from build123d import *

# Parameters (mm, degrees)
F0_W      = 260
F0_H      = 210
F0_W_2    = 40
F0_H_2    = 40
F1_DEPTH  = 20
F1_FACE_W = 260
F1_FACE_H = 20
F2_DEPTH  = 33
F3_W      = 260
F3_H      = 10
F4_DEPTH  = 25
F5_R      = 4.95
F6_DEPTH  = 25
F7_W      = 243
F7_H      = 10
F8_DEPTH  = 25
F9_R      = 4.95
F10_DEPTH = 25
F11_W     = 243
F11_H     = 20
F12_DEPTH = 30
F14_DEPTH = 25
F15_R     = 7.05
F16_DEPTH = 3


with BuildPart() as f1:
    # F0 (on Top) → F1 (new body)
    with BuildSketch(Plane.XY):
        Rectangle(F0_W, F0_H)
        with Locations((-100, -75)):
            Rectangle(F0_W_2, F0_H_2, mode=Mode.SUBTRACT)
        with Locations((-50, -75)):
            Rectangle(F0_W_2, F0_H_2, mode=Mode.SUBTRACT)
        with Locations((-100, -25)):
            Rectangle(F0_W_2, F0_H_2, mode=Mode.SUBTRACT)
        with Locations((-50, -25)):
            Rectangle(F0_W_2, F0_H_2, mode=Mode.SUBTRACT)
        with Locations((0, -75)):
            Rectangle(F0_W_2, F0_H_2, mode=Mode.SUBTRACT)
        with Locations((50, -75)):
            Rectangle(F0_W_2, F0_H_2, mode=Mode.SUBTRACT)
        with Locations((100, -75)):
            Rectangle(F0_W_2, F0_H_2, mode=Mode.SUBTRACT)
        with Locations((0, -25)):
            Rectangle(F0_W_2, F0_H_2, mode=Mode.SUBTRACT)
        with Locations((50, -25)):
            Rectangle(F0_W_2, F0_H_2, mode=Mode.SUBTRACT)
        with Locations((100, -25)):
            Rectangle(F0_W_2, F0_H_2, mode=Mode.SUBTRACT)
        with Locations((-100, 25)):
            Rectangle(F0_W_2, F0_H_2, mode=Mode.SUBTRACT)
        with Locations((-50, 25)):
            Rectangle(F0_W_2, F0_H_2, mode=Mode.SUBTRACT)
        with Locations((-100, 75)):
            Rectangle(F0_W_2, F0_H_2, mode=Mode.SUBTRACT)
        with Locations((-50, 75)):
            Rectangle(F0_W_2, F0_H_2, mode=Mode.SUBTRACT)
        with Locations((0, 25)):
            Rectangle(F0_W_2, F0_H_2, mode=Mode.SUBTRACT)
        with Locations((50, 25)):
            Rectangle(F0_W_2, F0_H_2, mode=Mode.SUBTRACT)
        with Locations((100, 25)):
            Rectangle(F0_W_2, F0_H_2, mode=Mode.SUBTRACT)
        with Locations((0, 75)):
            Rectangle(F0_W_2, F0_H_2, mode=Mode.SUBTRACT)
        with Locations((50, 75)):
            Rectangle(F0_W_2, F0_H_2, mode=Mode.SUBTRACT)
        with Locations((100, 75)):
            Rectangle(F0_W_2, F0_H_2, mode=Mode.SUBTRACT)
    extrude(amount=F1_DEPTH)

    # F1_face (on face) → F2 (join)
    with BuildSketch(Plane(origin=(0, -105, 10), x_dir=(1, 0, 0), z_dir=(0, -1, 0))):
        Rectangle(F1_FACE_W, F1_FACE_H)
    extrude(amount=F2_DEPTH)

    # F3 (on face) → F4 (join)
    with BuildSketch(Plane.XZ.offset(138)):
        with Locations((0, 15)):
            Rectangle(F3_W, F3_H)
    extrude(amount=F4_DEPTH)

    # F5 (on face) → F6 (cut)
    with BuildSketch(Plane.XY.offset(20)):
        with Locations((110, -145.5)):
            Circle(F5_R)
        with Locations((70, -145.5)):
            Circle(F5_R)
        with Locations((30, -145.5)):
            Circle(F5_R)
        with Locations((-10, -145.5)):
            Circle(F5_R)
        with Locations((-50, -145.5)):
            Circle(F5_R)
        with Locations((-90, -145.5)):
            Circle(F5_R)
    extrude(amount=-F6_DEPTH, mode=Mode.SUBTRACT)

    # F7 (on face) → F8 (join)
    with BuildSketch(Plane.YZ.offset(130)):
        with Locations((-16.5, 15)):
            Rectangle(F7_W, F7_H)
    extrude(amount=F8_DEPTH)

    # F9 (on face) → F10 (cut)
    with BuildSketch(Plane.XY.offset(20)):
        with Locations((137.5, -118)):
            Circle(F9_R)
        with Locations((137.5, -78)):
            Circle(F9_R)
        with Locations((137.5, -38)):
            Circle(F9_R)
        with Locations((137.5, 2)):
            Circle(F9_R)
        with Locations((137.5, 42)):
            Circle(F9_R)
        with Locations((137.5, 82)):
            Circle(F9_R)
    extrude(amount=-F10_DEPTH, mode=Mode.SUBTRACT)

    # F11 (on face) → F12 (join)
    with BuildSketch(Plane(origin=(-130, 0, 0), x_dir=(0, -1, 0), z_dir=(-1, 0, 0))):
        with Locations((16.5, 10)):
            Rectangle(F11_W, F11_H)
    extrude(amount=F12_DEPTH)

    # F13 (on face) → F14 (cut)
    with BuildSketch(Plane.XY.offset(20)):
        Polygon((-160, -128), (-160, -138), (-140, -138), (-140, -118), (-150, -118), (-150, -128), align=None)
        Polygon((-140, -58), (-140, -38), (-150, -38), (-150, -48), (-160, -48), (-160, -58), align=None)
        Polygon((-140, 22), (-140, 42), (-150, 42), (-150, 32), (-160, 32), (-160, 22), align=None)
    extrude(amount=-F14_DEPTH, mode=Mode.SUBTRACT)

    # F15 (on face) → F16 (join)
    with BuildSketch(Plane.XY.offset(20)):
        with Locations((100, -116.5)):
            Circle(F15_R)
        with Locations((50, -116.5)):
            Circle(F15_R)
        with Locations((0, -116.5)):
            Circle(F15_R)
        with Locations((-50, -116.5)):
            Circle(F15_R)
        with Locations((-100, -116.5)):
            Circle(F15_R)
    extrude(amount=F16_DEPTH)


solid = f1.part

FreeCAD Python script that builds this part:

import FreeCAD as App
import Part
import Sketcher
from FreeCAD import Vector

doc = App.newDocument("Part")
body = doc.addObject("PartDesign::Body", "Body")

# Sketch on XY plane
sketch1 = body.newObject("Sketcher::SketchObject", "Sketch")
sketch1.AttachmentSupport = (doc.getObject("XY_Plane"), [""])
sketch1.MapMode = "FlatFace"
sketch1.addGeometry([
    Part.LineSegment(Vector(-130, 105, 0), Vector(-130, -105, 0)),  # 0
    Part.LineSegment(Vector(-130, -105, 0), Vector(130, -105, 0)),  # 1
    Part.LineSegment(Vector(130, -105, 0), Vector(130, 105, 0)),  # 2
    Part.LineSegment(Vector(130, 105, 0), Vector(-130, 105, 0)),  # 3
    Part.LineSegment(Vector(-80, -95, 0), Vector(-120, -95, 0)),  # 4
    Part.LineSegment(Vector(-120, -95, 0), Vector(-120, -55, 0)),  # 5
    Part.LineSegment(Vector(-120, -55, 0), Vector(-80, -55, 0)),  # 6
    Part.LineSegment(Vector(-80, -55, 0), Vector(-80, -95, 0)),  # 7
    Part.LineSegment(Vector(-30, -95, 0), Vector(-70, -95, 0)),  # 8
    Part.LineSegment(Vector(-70, -95, 0), Vector(-70, -55, 0)),  # 9
    Part.LineSegment(Vector(-70, -55, 0), Vector(-30, -55, 0)),  # 10
    Part.LineSegment(Vector(-30, -55, 0), Vector(-30, -95, 0)),  # 11
    Part.LineSegment(Vector(-80, -45, 0), Vector(-120, -45, 0)),  # 12
    Part.LineSegment(Vector(-120, -45, 0), Vector(-120, -5, 0)),  # 13
    Part.LineSegment(Vector(-120, -5, 0), Vector(-80, -5, 0)),  # 14
    Part.LineSegment(Vector(-80, -5, 0), Vector(-80, -45, 0)),  # 15
    Part.LineSegment(Vector(-30, -45, 0), Vector(-70, -45, 0)),  # 16
    Part.LineSegment(Vector(-70, -45, 0), Vector(-70, -5, 0)),  # 17
    Part.LineSegment(Vector(-70, -5, 0), Vector(-30, -5, 0)),  # 18
    Part.LineSegment(Vector(-30, -5, 0), Vector(-30, -45, 0)),  # 19
    Part.LineSegment(Vector(20, -95, 0), Vector(-20, -95, 0)),  # 20
    Part.LineSegment(Vector(-20, -95, 0), Vector(-20, -55, 0)),  # 21
    Part.LineSegment(Vector(-20, -55, 0), Vector(20, -55, 0)),  # 22
    Part.LineSegment(Vector(20, -55, 0), Vector(20, -95, 0)),  # 23
    Part.LineSegment(Vector(70, -95, 0), Vector(30, -95, 0)),  # 24
    Part.LineSegment(Vector(30, -95, 0), Vector(30, -55, 0)),  # 25
    Part.LineSegment(Vector(30, -55, 0), Vector(70, -55, 0)),  # 26
    Part.LineSegment(Vector(70, -55, 0), Vector(70, -95, 0)),  # 27
    Part.LineSegment(Vector(120, -95, 0), Vector(80, -95, 0)),  # 28
    Part.LineSegment(Vector(80, -95, 0), Vector(80, -55, 0)),  # 29
    Part.LineSegment(Vector(80, -55, 0), Vector(120, -55, 0)),  # 30
    Part.LineSegment(Vector(120, -55, 0), Vector(120, -95, 0)),  # 31
    Part.LineSegment(Vector(20, -45, 0), Vector(-20, -45, 0)),  # 32
    Part.LineSegment(Vector(-20, -45, 0), Vector(-20, -5, 0)),  # 33
    Part.LineSegment(Vector(-20, -5, 0), Vector(20, -5, 0)),  # 34
    Part.LineSegment(Vector(20, -5, 0), Vector(20, -45, 0)),  # 35
    Part.LineSegment(Vector(70, -45, 0), Vector(30, -45, 0)),  # 36
    Part.LineSegment(Vector(30, -45, 0), Vector(30, -5, 0)),  # 37
    Part.LineSegment(Vector(30, -5, 0), Vector(70, -5, 0)),  # 38
    Part.LineSegment(Vector(70, -5, 0), Vector(70, -45, 0)),  # 39
    Part.LineSegment(Vector(120, -45, 0), Vector(80, -45, 0)),  # 40
    Part.LineSegment(Vector(80, -45, 0), Vector(80, -5, 0)),  # 41
    Part.LineSegment(Vector(80, -5, 0), Vector(120, -5, 0)),  # 42
    Part.LineSegment(Vector(120, -5, 0), Vector(120, -45, 0)),  # 43
    Part.LineSegment(Vector(-80, 5, 0), Vector(-120, 5, 0)),  # 44
    Part.LineSegment(Vector(-120, 5, 0), Vector(-120, 45, 0)),  # 45
    Part.LineSegment(Vector(-120, 45, 0), Vector(-80, 45, 0)),  # 46
    Part.LineSegment(Vector(-80, 45, 0), Vector(-80, 5, 0)),  # 47
    Part.LineSegment(Vector(-30, 5, 0), Vector(-70, 5, 0)),  # 48
    Part.LineSegment(Vector(-70, 5, 0), Vector(-70, 45, 0)),  # 49
    Part.LineSegment(Vector(-70, 45, 0), Vector(-30, 45, 0)),  # 50
    Part.LineSegment(Vector(-30, 45, 0), Vector(-30, 5, 0)),  # 51
    Part.LineSegment(Vector(-80, 55, 0), Vector(-120, 55, 0)),  # 52
    Part.LineSegment(Vector(-120, 55, 0), Vector(-120, 95, 0)),  # 53
    Part.LineSegment(Vector(-120, 95, 0), Vector(-80, 95, 0)),  # 54
    Part.LineSegment(Vector(-80, 95, 0), Vector(-80, 55, 0)),  # 55
    Part.LineSegment(Vector(-30, 55, 0), Vector(-70, 55, 0)),  # 56
    Part.LineSegment(Vector(-70, 55, 0), Vector(-70, 95, 0)),  # 57
    Part.LineSegment(Vector(-70, 95, 0), Vector(-30, 95, 0)),  # 58
    Part.LineSegment(Vector(-30, 95, 0), Vector(-30, 55, 0)),  # 59
    Part.LineSegment(Vector(20, 5, 0), Vector(-20, 5, 0)),  # 60
    Part.LineSegment(Vector(-20, 5, 0), Vector(-20, 45, 0)),  # 61
    Part.LineSegment(Vector(-20, 45, 0), Vector(20, 45, 0)),  # 62
    Part.LineSegment(Vector(20, 45, 0), Vector(20, 5, 0)),  # 63
    Part.LineSegment(Vector(70, 5, 0), Vector(30, 5, 0)),  # 64
    Part.LineSegment(Vector(30, 5, 0), Vector(30, 45, 0)),  # 65
    Part.LineSegment(Vector(30, 45, 0), Vector(70, 45, 0)),  # 66
    Part.LineSegment(Vector(70, 45, 0), Vector(70, 5, 0)),  # 67
    Part.LineSegment(Vector(120, 5, 0), Vector(80, 5, 0)),  # 68
    Part.LineSegment(Vector(80, 5, 0), Vector(80, 45, 0)),  # 69
    Part.LineSegment(Vector(80, 45, 0), Vector(120, 45, 0)),  # 70
    Part.LineSegment(Vector(120, 45, 0), Vector(120, 5, 0)),  # 71
    Part.LineSegment(Vector(20, 55, 0), Vector(-20, 55, 0)),  # 72
    Part.LineSegment(Vector(-20, 55, 0), Vector(-20, 95, 0)),  # 73
    Part.LineSegment(Vector(-20, 95, 0), Vector(20, 95, 0)),  # 74
    Part.LineSegment(Vector(20, 95, 0), Vector(20, 55, 0)),  # 75
    Part.LineSegment(Vector(70, 55, 0), Vector(30, 55, 0)),  # 76
    Part.LineSegment(Vector(30, 55, 0), Vector(30, 95, 0)),  # 77
    Part.LineSegment(Vector(30, 95, 0), Vector(70, 95, 0)),  # 78
    Part.LineSegment(Vector(70, 95, 0), Vector(70, 55, 0)),  # 79
    Part.LineSegment(Vector(120, 55, 0), Vector(80, 55, 0)),  # 80
    Part.LineSegment(Vector(80, 55, 0), Vector(80, 95, 0)),  # 81
    Part.LineSegment(Vector(80, 95, 0), Vector(120, 95, 0)),  # 82
    Part.LineSegment(Vector(120, 95, 0), Vector(120, 55, 0)),  # 83
], False)
sketch1.addConstraint([
    Sketcher.Constraint("Coincident", 0, 2, 1, 1),
    Sketcher.Constraint("Coincident", 1, 2, 2, 1),
    Sketcher.Constraint("Coincident", 2, 2, 3, 1),
    Sketcher.Constraint("Coincident", 3, 2, 0, 1),
    Sketcher.Constraint("Coincident", 4, 2, 5, 1),
    Sketcher.Constraint("Coincident", 5, 2, 6, 1),
    Sketcher.Constraint("Coincident", 6, 2, 7, 1),
    Sketcher.Constraint("Coincident", 7, 2, 4, 1),
    Sketcher.Constraint("Coincident", 8, 2, 9, 1),
    Sketcher.Constraint("Coincident", 9, 2, 10, 1),
    Sketcher.Constraint("Coincident", 10, 2, 11, 1),
    Sketcher.Constraint("Coincident", 11, 2, 8, 1),
    Sketcher.Constraint("Coincident", 12, 2, 13, 1),
    Sketcher.Constraint("Coincident", 13, 2, 14, 1),
    Sketcher.Constraint("Coincident", 14, 2, 15, 1),
    Sketcher.Constraint("Coincident", 15, 2, 12, 1),
    Sketcher.Constraint("Coincident", 16, 2, 17, 1),
    Sketcher.Constraint("Coincident", 17, 2, 18, 1),
    Sketcher.Constraint("Coincident", 18, 2, 19, 1),
    Sketcher.Constraint("Coincident", 19, 2, 16, 1),
    Sketcher.Constraint("Coincident", 20, 2, 21, 1),
    Sketcher.Constraint("Coincident", 21, 2, 22, 1),
    Sketcher.Constraint("Coincident", 22, 2, 23, 1),
    Sketcher.Constraint("Coincident", 23, 2, 20, 1),
    Sketcher.Constraint("Coincident", 24, 2, 25, 1),
    Sketcher.Constraint("Coincident", 25, 2, 26, 1),
    Sketcher.Constraint("Coincident", 26, 2, 27, 1),
    Sketcher.Constraint("Coincident", 27, 2, 24, 1),
    Sketcher.Constraint("Coincident", 28, 2, 29, 1),
    Sketcher.Constraint("Coincident", 29, 2, 30, 1),
    Sketcher.Constraint("Coincident", 30, 2, 31, 1),
    Sketcher.Constraint("Coincident", 31, 2, 28, 1),
    Sketcher.Constraint("Coincident", 32, 2, 33, 1),
    Sketcher.Constraint("Coincident", 33, 2, 34, 1),
    Sketcher.Constraint("Coincident", 34, 2, 35, 1),
    Sketcher.Constraint("Coincident", 35, 2, 32, 1),
    Sketcher.Constraint("Coincident", 36, 2, 37, 1),
    Sketcher.Constraint("Coincident", 37, 2, 38, 1),
    Sketcher.Constraint("Coincident", 38, 2, 39, 1),
    Sketcher.Constraint("Coincident", 39, 2, 36, 1),
    Sketcher.Constraint("Coincident", 40, 2, 41, 1),
    Sketcher.Constraint("Coincident", 41, 2, 42, 1),
    Sketcher.Constraint("Coincident", 42, 2, 43, 1),
    Sketcher.Constraint("Coincident", 43, 2, 40, 1),
    Sketcher.Constraint("Coincident", 44, 2, 45, 1),
    Sketcher.Constraint("Coincident", 45, 2, 46, 1),
    Sketcher.Constraint("Coincident", 46, 2, 47, 1),
    Sketcher.Constraint("Coincident", 47, 2, 44, 1),
    Sketcher.Constraint("Coincident", 48, 2, 49, 1),
    Sketcher.Constraint("Coincident", 49, 2, 50, 1),
    Sketcher.Constraint("Coincident", 50, 2, 51, 1),
    Sketcher.Constraint("Coincident", 51, 2, 48, 1),
    Sketcher.Constraint("Coincident", 52, 2, 53, 1),
    Sketcher.Constraint("Coincident", 53, 2, 54, 1),
    Sketcher.Constraint("Coincident", 54, 2, 55, 1),
    Sketcher.Constraint("Coincident", 55, 2, 52, 1),
    Sketcher.Constraint("Coincident", 56, 2, 57, 1),
    Sketcher.Constraint("Coincident", 57, 2, 58, 1),
    Sketcher.Constraint("Coincident", 58, 2, 59, 1),
    Sketcher.Constraint("Coincident", 59, 2, 56, 1),
    Sketcher.Constraint("Coincident", 60, 2, 61, 1),
    Sketcher.Constraint("Coincident", 61, 2, 62, 1),
    Sketcher.Constraint("Coincident", 62, 2, 63, 1),
    Sketcher.Constraint("Coincident", 63, 2, 60, 1),
    Sketcher.Constraint("Coincident", 64, 2, 65, 1),
    Sketcher.Constraint("Coincident", 65, 2, 66, 1),
    Sketcher.Constraint("Coincident", 66, 2, 67, 1),
    Sketcher.Constraint("Coincident", 67, 2, 64, 1),
    Sketcher.Constraint("Coincident", 68, 2, 69, 1),
    Sketcher.Constraint("Coincident", 69, 2, 70, 1),
    Sketcher.Constraint("Coincident", 70, 2, 71, 1),
    Sketcher.Constraint("Coincident", 71, 2, 68, 1),
    Sketcher.Constraint("Coincident", 72, 2, 73, 1),
    Sketcher.Constraint("Coincident", 73, 2, 74, 1),
    Sketcher.Constraint("Coincident", 74, 2, 75, 1),
    Sketcher.Constraint("Coincident", 75, 2, 72, 1),
    Sketcher.Constraint("Coincident", 76, 2, 77, 1),
    Sketcher.Constraint("Coincident", 77, 2, 78, 1),
    Sketcher.Constraint("Coincident", 78, 2, 79, 1),
    Sketcher.Constraint("Coincident", 79, 2, 76, 1),
    Sketcher.Constraint("Coincident", 80, 2, 81, 1),
    Sketcher.Constraint("Coincident", 81, 2, 82, 1),
    Sketcher.Constraint("Coincident", 82, 2, 83, 1),
    Sketcher.Constraint("Coincident", 83, 2, 80, 1),
    Sketcher.Constraint("Vertical", 0),
    Sketcher.Constraint("Horizontal", 1),
    Sketcher.Constraint("Vertical", 2),
    Sketcher.Constraint("Horizontal", 3),
    Sketcher.Constraint("Horizontal", 4),
    Sketcher.Constraint("Vertical", 5),
    Sketcher.Constraint("Horizontal", 6),
    Sketcher.Constraint("Vertical", 7),
    Sketcher.Constraint("Horizontal", 8),
    Sketcher.Constraint("Vertical", 9),
    Sketcher.Constraint("Horizontal", 10),
    Sketcher.Constraint("Vertical", 11),
    Sketcher.Constraint("Horizontal", 12),
    Sketcher.Constraint("Vertical", 13),
    Sketcher.Constraint("Horizontal", 14),
    Sketcher.Constraint("Vertical", 15),
    Sketcher.Constraint("Horizontal", 16),
    Sketcher.Constraint("Vertical", 17),
    Sketcher.Constraint("Horizontal", 18),
    Sketcher.Constraint("Vertical", 19),
    Sketcher.Constraint("Horizontal", 20),
    Sketcher.Constraint("Vertical", 21),
    Sketcher.Constraint("Horizontal", 22),
    Sketcher.Constraint("Vertical", 23),
    Sketcher.Constraint("Horizontal", 24),
    Sketcher.Constraint("Vertical", 25),
    Sketcher.Constraint("Horizontal", 26),
    Sketcher.Constraint("Vertical", 27),
    Sketcher.Constraint("Horizontal", 28),
    Sketcher.Constraint("Vertical", 29),
    Sketcher.Constraint("Horizontal", 30),
    Sketcher.Constraint("Vertical", 31),
    Sketcher.Constraint("Horizontal", 32),
    Sketcher.Constraint("Vertical", 33),
    Sketcher.Constraint("Horizontal", 34),
    Sketcher.Constraint("Vertical", 35),
    Sketcher.Constraint("Horizontal", 36),
    Sketcher.Constraint("Vertical", 37),
    Sketcher.Constraint("Horizontal", 38),
    Sketcher.Constraint("Vertical", 39),
    Sketcher.Constraint("Horizontal", 40),
    Sketcher.Constraint("Vertical", 41),
    Sketcher.Constraint("Horizontal", 42),
    Sketcher.Constraint("Vertical", 43),
    Sketcher.Constraint("Horizontal", 44),
    Sketcher.Constraint("Vertical", 45),
    Sketcher.Constraint("Horizontal", 46),
    Sketcher.Constraint("Vertical", 47),
    Sketcher.Constraint("Horizontal", 48),
    Sketcher.Constraint("Vertical", 49),
    Sketcher.Constraint("Horizontal", 50),
    Sketcher.Constraint("Vertical", 51),
    Sketcher.Constraint("Horizontal", 52),
    Sketcher.Constraint("Vertical", 53),
    Sketcher.Constraint("Horizontal", 54),
    Sketcher.Constraint("Vertical", 55),
    Sketcher.Constraint("Horizontal", 56),
    Sketcher.Constraint("Vertical", 57),
    Sketcher.Constraint("Horizontal", 58),
    Sketcher.Constraint("Vertical", 59),
    Sketcher.Constraint("Horizontal", 60),
    Sketcher.Constraint("Vertical", 61),
    Sketcher.Constraint("Horizontal", 62),
    Sketcher.Constraint("Vertical", 63),
    Sketcher.Constraint("Horizontal", 64),
    Sketcher.Constraint("Vertical", 65),
    Sketcher.Constraint("Horizontal", 66),
    Sketcher.Constraint("Vertical", 67),
    Sketcher.Constraint("Horizontal", 68),
    Sketcher.Constraint("Vertical", 69),
    Sketcher.Constraint("Horizontal", 70),
    Sketcher.Constraint("Vertical", 71),
    Sketcher.Constraint("Horizontal", 72),
    Sketcher.Constraint("Vertical", 73),
    Sketcher.Constraint("Horizontal", 74),
    Sketcher.Constraint("Vertical", 75),
    Sketcher.Constraint("Horizontal", 76),
    Sketcher.Constraint("Vertical", 77),
    Sketcher.Constraint("Horizontal", 78),
    Sketcher.Constraint("Vertical", 79),
    Sketcher.Constraint("Horizontal", 80),
    Sketcher.Constraint("Vertical", 81),
    Sketcher.Constraint("Horizontal", 82),
    Sketcher.Constraint("Vertical", 83),
    Sketcher.Constraint("Symmetric", 0, 2, 2, 2, -1, 1),
    Sketcher.Constraint("Symmetric", 42, 2, 44, 2, -1, 1),
    Sketcher.Constraint("Symmetric", 40, 2, 46, 2, -1, 1),
    Sketcher.Constraint("Symmetric", 38, 2, 48, 2, -1, 1),
    Sketcher.Constraint("Symmetric", 36, 2, 50, 2, -1, 1),
    Sketcher.Constraint("Symmetric", 30, 2, 52, 2, -1, 1),
    Sketcher.Constraint("Symmetric", 28, 2, 54, 2, -1, 1),
    Sketcher.Constraint("Symmetric", 26, 2, 56, 2, -1, 1),
    Sketcher.Constraint("Symmetric", 24, 2, 58, 2, -1, 1),
    Sketcher.Constraint("Symmetric", 34, 2, 60, 2, -1, 1),
    Sketcher.Constraint("Symmetric", 32, 2, 62, 2, -1, 1),
    Sketcher.Constraint("Symmetric", 18, 2, 64, 2, -1, 1),
    Sketcher.Constraint("Symmetric", 16, 2, 66, 2, -1, 1),
    Sketcher.Constraint("Symmetric", 14, 2, 68, 2, -1, 1),
    Sketcher.Constraint("Symmetric", 12, 2, 70, 2, -1, 1),
    Sketcher.Constraint("Symmetric", 22, 2, 72, 2, -1, 1),
    Sketcher.Constraint("Symmetric", 20, 2, 74, 2, -1, 1),
    Sketcher.Constraint("Symmetric", 10, 2, 76, 2, -1, 1),
    Sketcher.Constraint("Symmetric", 8, 2, 78, 2, -1, 1),
    Sketcher.Constraint("Symmetric", 6, 2, 80, 2, -1, 1),
    Sketcher.Constraint("Symmetric", 4, 2, 82, 2, -1, 1),
    Sketcher.Constraint("Symmetric", 11, 2, 24, 2, -2),
    Sketcher.Constraint("Symmetric", 9, 2, 26, 2, -2),
    Sketcher.Constraint("Symmetric", 7, 2, 28, 2, -2),
    Sketcher.Constraint("Symmetric", 5, 2, 30, 2, -2),
    Sketcher.Constraint("Symmetric", 19, 2, 36, 2, -2),
    Sketcher.Constraint("Symmetric", 17, 2, 38, 2, -2),
    Sketcher.Constraint("Symmetric", 15, 2, 40, 2, -2),
    Sketcher.Constraint("Symmetric", 13, 2, 42, 2, -2),
    Sketcher.Constraint("Horizontal", 7, 2, 8, 2),
    Sketcher.Constraint("Horizontal", 6, 2, 9, 2),
    Sketcher.Constraint("Horizontal", 15, 2, 16, 2),
    Sketcher.Constraint("Horizontal", 14, 2, 17, 2),
    Sketcher.Constraint("Horizontal", 11, 2, 20, 2),
    Sketcher.Constraint("Horizontal", 10, 2, 21, 2),
    Sketcher.Constraint("Horizontal", 19, 2, 32, 2),
    Sketcher.Constraint("Horizontal", 18, 2, 33, 2),
    Sketcher.Constraint("Vertical", 5, 2, 12, 2),
    Sketcher.Constraint("Vertical", 7, 2, 14, 2),
    Sketcher.Constraint("Vertical", 9, 2, 16, 2),
    Sketcher.Constraint("Vertical", 11, 2, 18, 2),
    Sketcher.Constraint("Vertical", 21, 2, 32, 2),
    Sketcher.Constraint("Vertical", 23, 2, 34, 2),
    Sketcher.Constraint("Vertical", 33, 2, 60, 2),
    Sketcher.Constraint("Equal", 6, 8),
    Sketcher.Constraint("Equal", 18, 20),
    Sketcher.Constraint("Equal", 82, 5),
    Sketcher.Constraint("Equal", 11, 13),
    Sketcher.Constraint("DistanceX", 1, 1, 1, 2, 260.0),
    Sketcher.Constraint("DistanceX", 4, 2, 4, 1, 40.0),
    Sketcher.Constraint("DistanceY", 0, 2, 0, 1, 210.0),
    Sketcher.Constraint("DistanceX", 4, 2, -1, 1, 120.0),
    Sketcher.Constraint("DistanceY", 4, 2, -1, 1, 95.0),
    Sketcher.Constraint("DistanceX", 8, 2, -1, 1, 70.0),
    Sketcher.Constraint("DistanceY", 12, 2, -1, 1, 45.0),
])
pad1 = body.newObject("PartDesign::Pad", "Pad")
pad1.Profile = sketch1
pad1.Length = 20

# Sketch on XZ plane
sketch2 = body.newObject("Sketcher::SketchObject", "Sketch001")
sketch2.AttachmentSupport = (doc.getObject("XZ_Plane"), [""])
sketch2.MapMode = "FlatFace"
sketch2.AttachmentOffset = App.Placement(Vector(0, 0, 105), App.Rotation())
sketch2.addGeometry([
    Part.LineSegment(Vector(-130, 20, 0), Vector(-130, 0, 0)),
    Part.LineSegment(Vector(-130, 0, 0), Vector(130, 0, 0)),
    Part.LineSegment(Vector(130, 0, 0), Vector(130, 20, 0)),
    Part.LineSegment(Vector(130, 20, 0), Vector(-130, 20, 0)),
], False)
sketch2.addConstraint([
    Sketcher.Constraint("Coincident", 0, 2, 1, 1),
    Sketcher.Constraint("Coincident", 1, 2, 2, 1),
    Sketcher.Constraint("Coincident", 2, 2, 3, 1),
    Sketcher.Constraint("Coincident", 3, 2, 0, 1),
    Sketcher.Constraint("Vertical", 0),
    Sketcher.Constraint("Horizontal", 1),
    Sketcher.Constraint("Vertical", 2),
    Sketcher.Constraint("Horizontal", 3),
    Sketcher.Constraint("Symmetric", 0, 2, 1, 2, -1, 1),
    Sketcher.Constraint("DistanceX", 1, 1, 1, 2, 260.0),
    Sketcher.Constraint("DistanceY", 0, 2, 0, 1, 20.0),
])
pad2 = body.newObject("PartDesign::Pad", "Pad001")
pad2.Profile = sketch2
pad2.Length = 33

# Sketch on XZ plane
sketch3 = body.newObject("Sketcher::SketchObject", "Sketch002")
sketch3.AttachmentSupport = (doc.getObject("XZ_Plane"), [""])
sketch3.MapMode = "FlatFace"
sketch3.AttachmentOffset = App.Placement(Vector(0, 0, 138), App.Rotation())
sketch3.addGeometry([
    Part.LineSegment(Vector(-130, 20, 0), Vector(-130, 10, 0)),
    Part.LineSegment(Vector(-130, 10, 0), Vector(130, 10, 0)),
    Part.LineSegment(Vector(130, 10, 0), Vector(130, 20, 0)),
    Part.LineSegment(Vector(130, 20, 0), Vector(-130, 20, 0)),
], False)
sketch3.addConstraint([
    Sketcher.Constraint("Coincident", 0, 2, 1, 1),
    Sketcher.Constraint("Coincident", 1, 2, 2, 1),
    Sketcher.Constraint("Coincident", 2, 2, 3, 1),
    Sketcher.Constraint("Coincident", 3, 2, 0, 1),
    Sketcher.Constraint("Vertical", 0),
    Sketcher.Constraint("Horizontal", 1),
    Sketcher.Constraint("Vertical", 2),
    Sketcher.Constraint("Horizontal", 3),
    Sketcher.Constraint("DistanceX", 1, 1, 1, 2, 260.0),
    Sketcher.Constraint("DistanceY", 0, 2, 0, 1, 10.0),
    Sketcher.Constraint("DistanceX", 0, 2, -1, 1, 130.0),
    Sketcher.Constraint("DistanceY", -1, 1, 0, 2, 10.0),
])
pad3 = body.newObject("PartDesign::Pad", "Pad002")
pad3.Profile = sketch3
pad3.Length = 25

# Sketch on XY plane
sketch4 = body.newObject("Sketcher::SketchObject", "Sketch003")
sketch4.AttachmentSupport = (doc.getObject("XY_Plane"), [""])
sketch4.MapMode = "FlatFace"
sketch4.AttachmentOffset = App.Placement(Vector(0, 0, 20), App.Rotation())
sketch4.addGeometry([
    Part.Circle(Vector(110, -145.5, 0), Vector(0, 0, 1), 5),  # 0
    Part.Circle(Vector(70, -145.5, 0), Vector(0, 0, 1), 5),  # 1
    Part.Circle(Vector(30, -145.5, 0), Vector(0, 0, 1), 5),  # 2
    Part.Circle(Vector(-10, -145.5, 0), Vector(0, 0, 1), 5),  # 3
    Part.Circle(Vector(-50, -145.5, 0), Vector(0, 0, 1), 5),  # 4
    Part.Circle(Vector(-90, -145.5, 0), Vector(0, 0, 1), 5),  # 5
], False)
sketch4.addConstraint([
    Sketcher.Constraint("Equal", 0, 1),
    Sketcher.Constraint("Equal", 1, 2),
    Sketcher.Constraint("Equal", 2, 3),
    Sketcher.Constraint("Equal", 3, 4),
    Sketcher.Constraint("Equal", 4, 5),
    Sketcher.Constraint("Horizontal", 0, 3, 1, 3),
    Sketcher.Constraint("Horizontal", 1, 3, 2, 3),
    Sketcher.Constraint("Horizontal", 2, 3, 3, 3),
    Sketcher.Constraint("Horizontal", 3, 3, 4, 3),
    Sketcher.Constraint("Horizontal", 4, 3, 5, 3),
    Sketcher.Constraint("Diameter", 0, 9.9),
    Sketcher.Constraint("DistanceX", -1, 1, 0, 3, 110.0),
    Sketcher.Constraint("DistanceX", -1, 1, 1, 3, 70.0),
    Sketcher.Constraint("DistanceX", -1, 1, 2, 3, 30.0),
    Sketcher.Constraint("DistanceX", 3, 3, -1, 1, 10.0),
    Sketcher.Constraint("DistanceX", 4, 3, -1, 1, 50.0),
    Sketcher.Constraint("DistanceX", 5, 3, -1, 1, 90.0),
    Sketcher.Constraint("DistanceY", 0, 3, -1, 1, 145.5),
])
pocket1 = body.newObject("PartDesign::Pocket", "Pocket")
pocket1.Profile = sketch4
pocket1.Length = 25

# Sketch on YZ plane
sketch5 = body.newObject("Sketcher::SketchObject", "Sketch004")
sketch5.AttachmentSupport = (doc.getObject("YZ_Plane"), [""])
sketch5.MapMode = "FlatFace"
sketch5.AttachmentOffset = App.Placement(Vector(0, 0, 130), App.Rotation())
sketch5.addGeometry([
    Part.LineSegment(Vector(-138, 20, 0), Vector(-138, 10, 0)),
    Part.LineSegment(Vector(-138, 10, 0), Vector(105, 10, 0)),
    Part.LineSegment(Vector(105, 10, 0), Vector(105, 20, 0)),
    Part.LineSegment(Vector(105, 20, 0), Vector(-138, 20, 0)),
], False)
sketch5.addConstraint([
    Sketcher.Constraint("Coincident", 0, 2, 1, 1),
    Sketcher.Constraint("Coincident", 1, 2, 2, 1),
    Sketcher.Constraint("Coincident", 2, 2, 3, 1),
    Sketcher.Constraint("Coincident", 3, 2, 0, 1),
    Sketcher.Constraint("Vertical", 0),
    Sketcher.Constraint("Horizontal", 1),
    Sketcher.Constraint("Vertical", 2),
    Sketcher.Constraint("Horizontal", 3),
    Sketcher.Constraint("DistanceX", 1, 1, 1, 2, 243.0),
    Sketcher.Constraint("DistanceY", 0, 2, 0, 1, 10.0),
    Sketcher.Constraint("DistanceX", 0, 2, -1, 1, 138.0),
    Sketcher.Constraint("DistanceY", -1, 1, 0, 2, 10.0),
])
pad4 = body.newObject("PartDesign::Pad", "Pad003")
pad4.Profile = sketch5
pad4.Length = 25

# Sketch on XY plane
sketch6 = body.newObject("Sketcher::SketchObject", "Sketch005")
sketch6.AttachmentSupport = (doc.getObject("XY_Plane"), [""])
sketch6.MapMode = "FlatFace"
sketch6.AttachmentOffset = App.Placement(Vector(0, 0, 20), App.Rotation())
sketch6.addGeometry([
    Part.Circle(Vector(137.5, -118, 0), Vector(0, 0, 1), 5),  # 0
    Part.Circle(Vector(137.5, -78, 0), Vector(0, 0, 1), 5),  # 1
    Part.Circle(Vector(137.5, -38, 0), Vector(0, 0, 1), 5),  # 2
    Part.Circle(Vector(137.5, 2, 0), Vector(0, 0, 1), 5),  # 3
    Part.Circle(Vector(137.5, 42, 0), Vector(0, 0, 1), 5),  # 4
    Part.Circle(Vector(137.5, 82, 0), Vector(0, 0, 1), 5),  # 5
], False)
sketch6.addConstraint([
    Sketcher.Constraint("Equal", 0, 1),
    Sketcher.Constraint("Equal", 1, 2),
    Sketcher.Constraint("Equal", 2, 3),
    Sketcher.Constraint("Equal", 3, 4),
    Sketcher.Constraint("Equal", 4, 5),
    Sketcher.Constraint("Vertical", 0, 3, 1, 3),
    Sketcher.Constraint("Vertical", 1, 3, 2, 3),
    Sketcher.Constraint("Vertical", 2, 3, 3, 3),
    Sketcher.Constraint("Vertical", 3, 3, 4, 3),
    Sketcher.Constraint("Vertical", 4, 3, 5, 3),
    Sketcher.Constraint("Diameter", 0, 9.9),
    Sketcher.Constraint("DistanceY", 0, 3, -1, 1, 118.0),
    Sketcher.Constraint("DistanceY", 1, 3, -1, 1, 78.0),
    Sketcher.Constraint("DistanceY", 2, 3, -1, 1, 38.0),
    Sketcher.Constraint("DistanceY", -1, 1, 3, 3, 2.0),
    Sketcher.Constraint("DistanceY", -1, 1, 4, 3, 42.0),
    Sketcher.Constraint("DistanceY", -1, 1, 5, 3, 82.0),
    Sketcher.Constraint("DistanceX", -1, 1, 0, 3, 137.5),
])
pocket2 = body.newObject("PartDesign::Pocket", "Pocket001")
pocket2.Profile = sketch6
pocket2.Length = 25

# Sketch on YZ plane
sketch7 = body.newObject("Sketcher::SketchObject", "Sketch006")
sketch7.AttachmentSupport = (doc.getObject("YZ_Plane"), [""])
sketch7.MapMode = "FlatFace"
sketch7.AttachmentOffset = App.Placement(Vector(0, 0, -130), App.Rotation())
sketch7.addGeometry([
    Part.LineSegment(Vector(105, 20, 0), Vector(105, 0, 0)),
    Part.LineSegment(Vector(105, 0, 0), Vector(-138, 0, 0)),
    Part.LineSegment(Vector(-138, 0, 0), Vector(-138, 20, 0)),
    Part.LineSegment(Vector(-138, 20, 0), Vector(105, 20, 0)),
], False)
sketch7.addConstraint([
    Sketcher.Constraint("Coincident", 0, 2, 1, 1),
    Sketcher.Constraint("Coincident", 1, 2, 2, 1),
    Sketcher.Constraint("Coincident", 2, 2, 3, 1),
    Sketcher.Constraint("Coincident", 3, 2, 0, 1),
    Sketcher.Constraint("Vertical", 0),
    Sketcher.Constraint("Horizontal", 1),
    Sketcher.Constraint("Vertical", 2),
    Sketcher.Constraint("Horizontal", 3),
    Sketcher.Constraint("PointOnObject", 0, 2, -1),
    Sketcher.Constraint("DistanceX", 1, 2, 1, 1, 243.0),
    Sketcher.Constraint("DistanceY", 0, 2, 0, 1, 20.0),
    Sketcher.Constraint("DistanceX", -1, 1, 0, 2, 105.0),
])
pad5 = body.newObject("PartDesign::Pad", "Pad004")
pad5.Profile = sketch7
pad5.Length = 30
pad5.Reversed = True

# Sketch on XY plane
sketch8 = body.newObject("Sketcher::SketchObject", "Sketch007")
sketch8.AttachmentSupport = (doc.getObject("XY_Plane"), [""])
sketch8.MapMode = "FlatFace"
sketch8.AttachmentOffset = App.Placement(Vector(0, 0, 20), App.Rotation())
sketch8.addGeometry([
    Part.LineSegment(Vector(-160, -128, 0), Vector(-160, -138, 0)),  # 0
    Part.LineSegment(Vector(-160, -138, 0), Vector(-140, -138, 0)),  # 1
    Part.LineSegment(Vector(-140, -138, 0), Vector(-140, -118, 0)),  # 2
    Part.LineSegment(Vector(-140, -118, 0), Vector(-150, -118, 0)),  # 3
    Part.LineSegment(Vector(-150, -118, 0), Vector(-150, -128, 0)),  # 4
    Part.LineSegment(Vector(-150, -128, 0), Vector(-160, -128, 0)),  # 5
    Part.LineSegment(Vector(-140, -58, 0), Vector(-140, -38, 0)),  # 6
    Part.LineSegment(Vector(-140, -38, 0), Vector(-150, -38, 0)),  # 7
    Part.LineSegment(Vector(-150, -38, 0), Vector(-150, -48, 0)),  # 8
    Part.LineSegment(Vector(-150, -48, 0), Vector(-160, -48, 0)),  # 9
    Part.LineSegment(Vector(-160, -48, 0), Vector(-160, -58, 0)),  # 10
    Part.LineSegment(Vector(-160, -58, 0), Vector(-140, -58, 0)),  # 11
    Part.LineSegment(Vector(-140, 22, 0), Vector(-140, 42, 0)),  # 12
    Part.LineSegment(Vector(-140, 42, 0), Vector(-150, 42, 0)),  # 13
    Part.LineSegment(Vector(-150, 42, 0), Vector(-150, 32, 0)),  # 14
    Part.LineSegment(Vector(-150, 32, 0), Vector(-160, 32, 0)),  # 15
    Part.LineSegment(Vector(-160, 32, 0), Vector(-160, 22, 0)),  # 16
    Part.LineSegment(Vector(-160, 22, 0), Vector(-140, 22, 0)),  # 17
], False)
sketch8.addConstraint([
    Sketcher.Constraint("Coincident", 0, 2, 1, 1),
    Sketcher.Constraint("Coincident", 1, 2, 2, 1),
    Sketcher.Constraint("Coincident", 2, 2, 3, 1),
    Sketcher.Constraint("Coincident", 3, 2, 4, 1),
    Sketcher.Constraint("Coincident", 4, 2, 5, 1),
    Sketcher.Constraint("Coincident", 5, 2, 0, 1),
    Sketcher.Constraint("Coincident", 6, 2, 7, 1),
    Sketcher.Constraint("Coincident", 7, 2, 8, 1),
    Sketcher.Constraint("Coincident", 8, 2, 9, 1),
    Sketcher.Constraint("Coincident", 9, 2, 10, 1),
    Sketcher.Constraint("Coincident", 10, 2, 11, 1),
    Sketcher.Constraint("Coincident", 11, 2, 6, 1),
    Sketcher.Constraint("Coincident", 12, 2, 13, 1),
    Sketcher.Constraint("Coincident", 13, 2, 14, 1),
    Sketcher.Constraint("Coincident", 14, 2, 15, 1),
    Sketcher.Constraint("Coincident", 15, 2, 16, 1),
    Sketcher.Constraint("Coincident", 16, 2, 17, 1),
    Sketcher.Constraint("Coincident", 17, 2, 12, 1),
    Sketcher.Constraint("Vertical", 0),
    Sketcher.Constraint("Horizontal", 1),
    Sketcher.Constraint("Vertical", 2),
    Sketcher.Constraint("Horizontal", 3),
    Sketcher.Constraint("Vertical", 4),
    Sketcher.Constraint("Horizontal", 5),
    Sketcher.Constraint("Vertical", 6),
    Sketcher.Constraint("Horizontal", 7),
    Sketcher.Constraint("Vertical", 8),
    Sketcher.Constraint("Horizontal", 9),
    Sketcher.Constraint("Vertical", 10),
    Sketcher.Constraint("Horizontal", 11),
    Sketcher.Constraint("Vertical", 12),
    Sketcher.Constraint("Horizontal", 13),
    Sketcher.Constraint("Vertical", 14),
    Sketcher.Constraint("Horizontal", 15),
    Sketcher.Constraint("Vertical", 16),
    Sketcher.Constraint("Horizontal", 17),
    Sketcher.Constraint("Vertical", 2, 2, 6, 2),
    Sketcher.Constraint("Vertical", 4, 2, 7, 2),
    Sketcher.Constraint("Vertical", 5, 2, 9, 2),
    Sketcher.Constraint("Vertical", 11, 2, 12, 2),
    Sketcher.Constraint("Vertical", 8, 2, 13, 2),
    Sketcher.Constraint("Vertical", 10, 2, 15, 2),
    Sketcher.Constraint("Equal", 3, 5),
    Sketcher.Constraint("Equal", 15, 0),
    Sketcher.Constraint("Equal", 17, 2),
    Sketcher.Constraint("Equal", 2, 6),
    Sketcher.Constraint("Equal", 4, 8),
    Sketcher.Constraint("Equal", 6, 12),
    Sketcher.Constraint("Equal", 10, 14),
    Sketcher.Constraint("DistanceX", 1, 1, 1, 2, 20.0),
    Sketcher.Constraint("DistanceX", 0, 2, -1, 1, 160.0),
    Sketcher.Constraint("DistanceY", 0, 2, -1, 1, 138.0),
    Sketcher.Constraint("DistanceY", 6, 2, -1, 1, 38.0),
    Sketcher.Constraint("DistanceY", -1, 1, 12, 2, 42.0),
])
pocket3 = body.newObject("PartDesign::Pocket", "Pocket002")
pocket3.Profile = sketch8
pocket3.Length = 25

# Sketch on XY plane
sketch9 = body.newObject("Sketcher::SketchObject", "Sketch008")
sketch9.AttachmentSupport = (doc.getObject("XY_Plane"), [""])
sketch9.MapMode = "FlatFace"
sketch9.AttachmentOffset = App.Placement(Vector(0, 0, 20), App.Rotation())
sketch9.addGeometry([
    Part.Circle(Vector(100, -116, 0), Vector(0, 0, 1), 7),  # 0
    Part.Circle(Vector(50, -116, 0), Vector(0, 0, 1), 7),  # 1
    Part.Circle(Vector(0, -116, 0), Vector(0, 0, 1), 7),  # 2
    Part.Circle(Vector(-50, -116, 0), Vector(0, 0, 1), 7),  # 3
    Part.Circle(Vector(-100, -116, 0), Vector(0, 0, 1), 7),  # 4
], False)
sketch9.addConstraint([
    Sketcher.Constraint("Equal", 0, 1),
    Sketcher.Constraint("Equal", 1, 2),
    Sketcher.Constraint("Equal", 2, 3),
    Sketcher.Constraint("Equal", 3, 4),
    Sketcher.Constraint("Symmetric", 1, 3, 3, 3, -2),
    Sketcher.Constraint("Symmetric", 0, 3, 4, 3, -2),
    Sketcher.Constraint("PointOnObject", 2, 3, -2),
    Sketcher.Constraint("Horizontal", 0, 3, 1, 3),
    Sketcher.Constraint("Horizontal", 1, 3, 2, 3),
    Sketcher.Constraint("Diameter", 0, 14.1),
    Sketcher.Constraint("DistanceX", -1, 1, 0, 3, 100.0),
    Sketcher.Constraint("DistanceX", -1, 1, 1, 3, 50.0),
    Sketcher.Constraint("DistanceY", 0, 3, -1, 1, 116.5),
])
pad6 = body.newObject("PartDesign::Pad", "Pad005")
pad6.Profile = sketch9
pad6.Length = 3

doc.recompute()
